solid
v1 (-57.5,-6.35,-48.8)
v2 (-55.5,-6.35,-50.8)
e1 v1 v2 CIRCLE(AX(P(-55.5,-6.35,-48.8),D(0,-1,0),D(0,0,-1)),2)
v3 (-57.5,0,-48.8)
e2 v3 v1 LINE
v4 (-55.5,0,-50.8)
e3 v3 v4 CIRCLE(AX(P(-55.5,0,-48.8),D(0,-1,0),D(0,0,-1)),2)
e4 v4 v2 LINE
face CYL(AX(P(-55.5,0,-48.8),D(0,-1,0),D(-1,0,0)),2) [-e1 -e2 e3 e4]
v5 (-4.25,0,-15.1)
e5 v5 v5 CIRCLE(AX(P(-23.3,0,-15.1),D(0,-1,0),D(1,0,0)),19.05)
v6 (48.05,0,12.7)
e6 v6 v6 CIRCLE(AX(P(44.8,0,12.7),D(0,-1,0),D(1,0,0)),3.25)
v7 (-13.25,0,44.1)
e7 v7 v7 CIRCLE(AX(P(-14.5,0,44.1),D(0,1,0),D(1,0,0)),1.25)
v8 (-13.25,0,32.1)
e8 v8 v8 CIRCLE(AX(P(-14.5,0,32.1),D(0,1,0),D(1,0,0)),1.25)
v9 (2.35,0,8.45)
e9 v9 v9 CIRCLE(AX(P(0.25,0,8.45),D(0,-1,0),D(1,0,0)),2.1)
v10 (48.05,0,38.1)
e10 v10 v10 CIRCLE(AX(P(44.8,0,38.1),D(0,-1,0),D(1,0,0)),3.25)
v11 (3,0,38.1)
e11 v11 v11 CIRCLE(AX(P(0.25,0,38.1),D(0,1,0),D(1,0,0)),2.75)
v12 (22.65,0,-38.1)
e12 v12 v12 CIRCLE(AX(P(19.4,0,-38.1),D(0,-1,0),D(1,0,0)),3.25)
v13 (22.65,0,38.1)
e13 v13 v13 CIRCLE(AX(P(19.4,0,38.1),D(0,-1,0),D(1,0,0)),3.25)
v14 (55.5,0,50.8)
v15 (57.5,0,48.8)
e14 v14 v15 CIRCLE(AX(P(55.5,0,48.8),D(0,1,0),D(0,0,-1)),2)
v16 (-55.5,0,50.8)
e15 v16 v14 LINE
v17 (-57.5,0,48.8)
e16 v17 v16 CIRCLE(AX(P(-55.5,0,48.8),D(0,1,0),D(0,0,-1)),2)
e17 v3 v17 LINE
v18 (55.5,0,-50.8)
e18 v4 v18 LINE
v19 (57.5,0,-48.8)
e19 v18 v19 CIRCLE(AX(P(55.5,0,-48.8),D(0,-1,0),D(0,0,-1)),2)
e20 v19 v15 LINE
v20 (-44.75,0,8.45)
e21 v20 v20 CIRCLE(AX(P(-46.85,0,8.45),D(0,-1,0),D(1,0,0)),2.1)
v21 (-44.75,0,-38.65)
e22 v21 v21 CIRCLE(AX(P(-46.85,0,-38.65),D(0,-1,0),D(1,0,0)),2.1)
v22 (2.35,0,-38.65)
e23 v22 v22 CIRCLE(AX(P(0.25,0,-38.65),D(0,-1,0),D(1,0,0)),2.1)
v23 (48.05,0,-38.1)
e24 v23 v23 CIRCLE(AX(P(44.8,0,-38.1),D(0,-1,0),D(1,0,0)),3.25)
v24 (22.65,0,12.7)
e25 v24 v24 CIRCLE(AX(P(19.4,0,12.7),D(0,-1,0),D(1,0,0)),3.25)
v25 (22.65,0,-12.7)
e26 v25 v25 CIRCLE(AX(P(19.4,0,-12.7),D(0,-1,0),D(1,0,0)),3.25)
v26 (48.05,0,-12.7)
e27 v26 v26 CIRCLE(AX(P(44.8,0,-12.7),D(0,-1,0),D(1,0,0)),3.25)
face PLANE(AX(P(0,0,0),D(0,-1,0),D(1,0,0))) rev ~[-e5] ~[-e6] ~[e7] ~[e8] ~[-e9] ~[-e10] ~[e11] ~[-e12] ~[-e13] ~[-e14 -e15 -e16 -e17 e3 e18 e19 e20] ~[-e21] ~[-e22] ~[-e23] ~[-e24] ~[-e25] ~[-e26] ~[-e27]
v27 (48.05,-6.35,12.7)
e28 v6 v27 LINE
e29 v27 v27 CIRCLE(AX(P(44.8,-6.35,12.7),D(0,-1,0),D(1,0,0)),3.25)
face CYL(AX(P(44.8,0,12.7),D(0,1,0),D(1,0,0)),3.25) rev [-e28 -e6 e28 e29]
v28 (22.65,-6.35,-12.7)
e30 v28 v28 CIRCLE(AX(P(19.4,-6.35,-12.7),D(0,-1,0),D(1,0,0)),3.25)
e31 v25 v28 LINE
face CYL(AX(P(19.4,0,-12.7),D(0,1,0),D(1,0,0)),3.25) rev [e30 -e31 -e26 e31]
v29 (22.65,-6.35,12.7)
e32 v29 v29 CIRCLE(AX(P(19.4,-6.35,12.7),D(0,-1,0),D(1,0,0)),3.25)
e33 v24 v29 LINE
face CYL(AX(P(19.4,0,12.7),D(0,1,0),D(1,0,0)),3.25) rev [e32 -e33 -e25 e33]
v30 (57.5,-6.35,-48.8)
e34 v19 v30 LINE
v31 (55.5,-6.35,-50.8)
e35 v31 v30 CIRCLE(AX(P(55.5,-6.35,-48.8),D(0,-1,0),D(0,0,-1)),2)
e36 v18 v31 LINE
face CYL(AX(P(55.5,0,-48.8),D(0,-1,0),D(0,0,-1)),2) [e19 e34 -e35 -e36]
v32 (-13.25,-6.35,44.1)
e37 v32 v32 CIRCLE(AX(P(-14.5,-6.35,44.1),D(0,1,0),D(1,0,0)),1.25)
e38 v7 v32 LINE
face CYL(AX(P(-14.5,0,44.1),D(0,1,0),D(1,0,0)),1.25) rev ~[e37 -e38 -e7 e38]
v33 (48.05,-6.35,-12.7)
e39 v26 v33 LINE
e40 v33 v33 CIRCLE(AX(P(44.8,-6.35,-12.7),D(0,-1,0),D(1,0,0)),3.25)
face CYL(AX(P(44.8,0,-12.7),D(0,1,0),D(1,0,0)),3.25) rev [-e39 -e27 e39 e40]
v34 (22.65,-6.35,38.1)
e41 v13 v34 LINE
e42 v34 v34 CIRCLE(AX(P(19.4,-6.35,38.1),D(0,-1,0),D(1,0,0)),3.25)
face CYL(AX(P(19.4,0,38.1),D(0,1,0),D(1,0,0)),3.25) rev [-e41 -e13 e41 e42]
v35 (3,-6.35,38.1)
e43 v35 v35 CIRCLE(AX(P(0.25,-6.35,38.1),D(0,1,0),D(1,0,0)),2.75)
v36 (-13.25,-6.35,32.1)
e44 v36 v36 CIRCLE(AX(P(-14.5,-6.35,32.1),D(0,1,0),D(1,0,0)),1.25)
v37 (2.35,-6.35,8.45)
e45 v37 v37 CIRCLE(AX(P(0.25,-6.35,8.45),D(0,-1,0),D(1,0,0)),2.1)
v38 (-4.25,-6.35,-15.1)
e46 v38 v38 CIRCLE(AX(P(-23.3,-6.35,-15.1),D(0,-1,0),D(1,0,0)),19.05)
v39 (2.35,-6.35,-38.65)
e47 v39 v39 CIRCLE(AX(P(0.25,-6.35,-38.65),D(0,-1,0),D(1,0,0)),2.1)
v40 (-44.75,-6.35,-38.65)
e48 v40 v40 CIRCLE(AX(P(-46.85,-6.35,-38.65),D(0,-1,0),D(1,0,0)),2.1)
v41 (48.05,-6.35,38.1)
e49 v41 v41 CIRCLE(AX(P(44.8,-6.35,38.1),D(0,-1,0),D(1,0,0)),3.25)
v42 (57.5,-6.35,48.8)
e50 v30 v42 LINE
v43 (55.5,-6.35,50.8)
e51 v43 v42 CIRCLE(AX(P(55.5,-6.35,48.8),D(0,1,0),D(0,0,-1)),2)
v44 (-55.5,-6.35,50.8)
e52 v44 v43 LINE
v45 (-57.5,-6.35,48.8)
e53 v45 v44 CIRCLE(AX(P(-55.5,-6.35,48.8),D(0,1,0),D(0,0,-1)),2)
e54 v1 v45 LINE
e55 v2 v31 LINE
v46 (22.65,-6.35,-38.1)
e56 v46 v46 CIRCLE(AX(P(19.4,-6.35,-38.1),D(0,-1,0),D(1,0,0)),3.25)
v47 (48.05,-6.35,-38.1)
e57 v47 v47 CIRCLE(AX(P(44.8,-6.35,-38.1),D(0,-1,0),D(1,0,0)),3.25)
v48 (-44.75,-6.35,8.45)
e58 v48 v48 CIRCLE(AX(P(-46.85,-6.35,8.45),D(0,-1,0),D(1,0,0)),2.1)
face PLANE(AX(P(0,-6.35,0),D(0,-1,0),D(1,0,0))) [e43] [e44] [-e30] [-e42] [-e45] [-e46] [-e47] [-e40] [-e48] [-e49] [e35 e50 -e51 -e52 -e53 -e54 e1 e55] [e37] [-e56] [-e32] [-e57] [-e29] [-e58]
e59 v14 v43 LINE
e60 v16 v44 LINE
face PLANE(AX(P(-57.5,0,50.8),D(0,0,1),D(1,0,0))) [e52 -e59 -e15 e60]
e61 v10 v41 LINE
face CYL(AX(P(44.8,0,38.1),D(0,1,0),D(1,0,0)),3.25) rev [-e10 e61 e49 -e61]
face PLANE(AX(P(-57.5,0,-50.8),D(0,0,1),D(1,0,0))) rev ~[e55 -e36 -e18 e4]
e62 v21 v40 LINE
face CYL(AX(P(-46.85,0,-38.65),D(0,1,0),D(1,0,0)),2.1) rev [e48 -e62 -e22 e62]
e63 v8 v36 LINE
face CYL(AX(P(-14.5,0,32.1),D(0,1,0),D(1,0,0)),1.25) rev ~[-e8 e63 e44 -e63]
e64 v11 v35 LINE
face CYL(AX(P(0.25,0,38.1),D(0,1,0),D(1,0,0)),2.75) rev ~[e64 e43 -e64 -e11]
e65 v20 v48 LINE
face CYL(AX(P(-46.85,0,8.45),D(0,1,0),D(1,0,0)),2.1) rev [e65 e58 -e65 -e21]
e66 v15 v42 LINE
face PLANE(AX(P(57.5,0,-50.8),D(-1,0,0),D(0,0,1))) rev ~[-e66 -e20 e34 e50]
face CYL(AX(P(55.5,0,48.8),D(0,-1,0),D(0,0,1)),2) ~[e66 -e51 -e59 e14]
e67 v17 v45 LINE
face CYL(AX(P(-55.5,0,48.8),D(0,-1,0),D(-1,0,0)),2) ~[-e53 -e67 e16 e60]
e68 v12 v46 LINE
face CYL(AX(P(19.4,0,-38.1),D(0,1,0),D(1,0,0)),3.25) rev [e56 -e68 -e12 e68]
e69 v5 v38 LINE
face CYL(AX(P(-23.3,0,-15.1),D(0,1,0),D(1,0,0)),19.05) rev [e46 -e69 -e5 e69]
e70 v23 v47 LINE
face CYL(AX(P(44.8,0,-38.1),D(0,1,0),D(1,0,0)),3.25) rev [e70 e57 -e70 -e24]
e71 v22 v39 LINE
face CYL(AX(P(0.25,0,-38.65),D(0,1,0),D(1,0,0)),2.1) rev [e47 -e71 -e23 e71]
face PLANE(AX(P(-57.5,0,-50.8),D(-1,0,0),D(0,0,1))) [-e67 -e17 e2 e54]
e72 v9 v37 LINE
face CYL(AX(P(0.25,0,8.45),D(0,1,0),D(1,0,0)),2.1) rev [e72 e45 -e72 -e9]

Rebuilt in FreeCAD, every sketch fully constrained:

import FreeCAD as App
import Part
import Sketcher
from FreeCAD import Vector
Q = App.Units.Quantity


def edges_at(feature, points):
    """Names of the edges that pass closest to the given points."""
    edges = feature.Shape.Edges
    near = lambda p: min(range(len(edges)), key=lambda i: edges[i].distToShape(Part.Vertex(*p))[0])
    return sorted({f"Edge{near(p) + 1}" for p in points})

doc = App.newDocument("Part")
body = doc.addObject("PartDesign::Body", "Body")

# Sketch on XZ plane
sketch1 = doc.addObject("Sketcher::SketchObject", "Sketch")
body.addObject(sketch1)
sketch1.AttachmentSupport = (doc.XZ_Plane, [""])
sketch1.MapMode = "FlatFace"
sketch1.addGeometry(Part.LineSegment(Vector(-57.5, 50.8, 0), Vector(-57.5, -50.8, 0)), False)
sketch1.addGeometry(Part.LineSegment(Vector(-57.5, -50.8, 0), Vector(57.5, -50.8, 0)), False)
sketch1.addGeometry(Part.LineSegment(Vector(57.5, -50.8, 0), Vector(57.5, 50.8, 0)), False)
sketch1.addGeometry(Part.LineSegment(Vector(57.5, 50.8, 0), Vector(-57.5, 50.8, 0)), False)
sketch1.addGeometry(Part.Circle(Vector(-46.9, -38.6, 0), Vector(0, 0, 1), 2.1), False)
sketch1.addGeometry(Part.Circle(Vector(-23.3, -15.1, 0), Vector(0, 0, 1), 19.1), False)
sketch1.addGeometry(Part.Circle(Vector(0.2, -38.6, 0), Vector(0, 0, 1), 2.1), False)
sketch1.addGeometry(Part.Circle(Vector(19.4, -38.1, 0), Vector(0, 0, 1), 3.2), False)
sketch1.addGeometry(Part.Circle(Vector(44.8, -38.1, 0), Vector(0, 0, 1), 3.2), False)
sketch1.addGeometry(Part.Circle(Vector(19.4, -12.7, 0), Vector(0, 0, 1), 3.2), False)
sketch1.addGeometry(Part.Circle(Vector(44.8, -12.7, 0), Vector(0, 0, 1), 3.2), False)
sketch1.addGeometry(Part.Circle(Vector(-46.9, 8.4, 0), Vector(0, 0, 1), 2.1), False)
sketch1.addGeometry(Part.Circle(Vector(0.2, 8.4, 0), Vector(0, 0, 1), 2.1), False)
sketch1.addGeometry(Part.Circle(Vector(19.4, 12.7, 0), Vector(0, 0, 1), 3.2), False)
sketch1.addGeometry(Part.Circle(Vector(44.8, 12.7, 0), Vector(0, 0, 1), 3.2), False)
sketch1.addGeometry(Part.Circle(Vector(19.4, 38.1, 0), Vector(0, 0, 1), 3.2), False)
sketch1.addGeometry(Part.Circle(Vector(44.8, 38.1, 0), Vector(0, 0, 1), 3.2), False)
sketch1.addConstraint(Sketcher.Constraint("Coincident", 0, 2, 1, 1))
sketch1.addConstraint(Sketcher.Constraint("Coincident", 1, 2, 2, 1))
sketch1.addConstraint(Sketcher.Constraint("Coincident", 2, 2, 3, 1))
sketch1.addConstraint(Sketcher.Constraint("Coincident", 3, 2, 0, 1))
sketch1.addConstraint(Sketcher.Constraint("Vertical", 0))
sketch1.addConstraint(Sketcher.Constraint("Horizontal", 1))
sketch1.addConstraint(Sketcher.Constraint("Vertical", 2))
sketch1.addConstraint(Sketcher.Constraint("Horizontal", 3))
sketch1.addConstraint(Sketcher.Constraint("Equal", 4, 6))
sketch1.addConstraint(Sketcher.Constraint("Equal", 7, 8))
sketch1.addConstraint(Sketcher.Constraint("Equal", 8, 9))
sketch1.addConstraint(Sketcher.Constraint("Equal", 9, 10))
sketch1.addConstraint(Sketcher.Constraint("Equal", 6, 11))
sketch1.addConstraint(Sketcher.Constraint("Equal", 11, 12))
sketch1.addConstraint(Sketcher.Constraint("Equal", 10, 13))
sketch1.addConstraint(Sketcher.Constraint("Equal", 13, 14))
sketch1.addConstraint(Sketcher.Constraint("Equal", 14, 15))
sketch1.addConstraint(Sketcher.Constraint("Equal", 15, 16))
sketch1.addConstraint(Sketcher.Constraint("Symmetric", 0, 2, 2, 2, -1, 1))
sketch1.addConstraint(Sketcher.Constraint("Symmetric", 9, 3, 13, 3, -1))
sketch1.addConstraint(Sketcher.Constraint("Symmetric", 10, 3, 14, 3, -1))
sketch1.addConstraint(Sketcher.Constraint("Symmetric", 7, 3, 15, 3, -1))
sketch1.addConstraint(Sketcher.Constraint("Symmetric", 8, 3, 16, 3, -1))
sketch1.addConstraint(Sketcher.Constraint("Horizontal", 4, 3, 6, 3))
sketch1.addConstraint(Sketcher.Constraint("Horizontal", 7, 3, 8, 3))
sketch1.addConstraint(Sketcher.Constraint("Horizontal", 9, 3, 10, 3))
sketch1.addConstraint(Sketcher.Constraint("Horizontal", 11, 3, 12, 3))
sketch1.addConstraint(Sketcher.Constraint("Vertical", 7, 3, 9, 3))
sketch1.addConstraint(Sketcher.Constraint("Vertical", 8, 3, 10, 3))
sketch1.addConstraint(Sketcher.Constraint("Vertical", 4, 3, 11, 3))
sketch1.addConstraint(Sketcher.Constraint("Vertical", 6, 3, 12, 3))
sketch1.addConstraint(Sketcher.Constraint("Diameter", 4, Q("4.2 mm")))
sketch1.addConstraint(Sketcher.Constraint("Diameter", 5, Q("38.1 mm")))
sketch1.addConstraint(Sketcher.Constraint("Diameter", 7, Q("6.5 mm")))
sketch1.addConstraint(Sketcher.Constraint("DistanceX", 1, 1, 1, 2, Q("115 mm")))
sketch1.addConstraint(Sketcher.Constraint("DistanceY", 0, 2, 0, 1, Q("101.6 mm")))
sketch1.addConstraint(Sketcher.Constraint("DistanceY", 7, 3, 5, 3, Q("23 mm")))
sketch1.addConstraint(Sketcher.Constraint("DistanceX", 5, 3, -1, 1, Q("23.3 mm")))
sketch1.addConstraint(Sketcher.Constraint("DistanceY", 5, 3, -1, 1, Q("15.1 mm")))
sketch1.addConstraint(Sketcher.Constraint("DistanceX", -1, 1, 7, 3, Q("19.4 mm")))
sketch1.addConstraint(Sketcher.Constraint("DistanceX", -1, 1, 8, 3, Q("44.8 mm")))
sketch1.addConstraint(Sketcher.Constraint("DistanceY", 9, 3, -1, 1, Q("12.7 mm")))
sketch1.addConstraint(Sketcher.Constraint("DistanceX", 4, 3, 6, 3, Q("47.1 mm")))
sketch1.addConstraint(Sketcher.Constraint("DistanceY", 4, 3, 11, 3, Q("47.1 mm")))
sketch1.addConstraint(Sketcher.Constraint("DistanceX", 4, 3, -1, 1, Q("46.85 mm")))
sketch1.addConstraint(Sketcher.Constraint("DistanceY", 4, 3, -1, 1, Q("38.65 mm")))
pad1 = doc.addObject("PartDesign::Pad", "Pad")
body.addObject(pad1)
pad1.Profile = sketch1
pad1.Length = 6.35
doc.recompute()

fillet = doc.addObject("PartDesign::Fillet", "Fillet")
body.addObject(fillet)
fillet.Base = (pad1, edges_at(pad1, [
    (57.5, -3.175, 50.8),
    (57.5, -3.175, -50.8),
    (-57.5, -3.175, -50.8),
    (-57.5, -3.175, 50.8),
]))
fillet.Radius = 2

# Sketch on XZ plane
sketch2 = doc.addObject("Sketcher::SketchObject", "Sketch001")
body.addObject(sketch2)
sketch2.AttachmentSupport = (doc.XZ_Plane, [""])
sketch2.MapMode = "FlatFace"
sketch2.addGeometry(Part.Circle(Vector(-14.5, 32.1, 0), Vector(0, 0, 1), 1.2), False)
sketch2.addGeometry(Part.Circle(Vector(-14.5, 44.1, 0), Vector(0, 0, 1), 1.2), False)
sketch2.addGeometry(Part.Circle(Vector(0.2, 38.1, 0), Vector(0, 0, 1), 2.8), False)
sketch2.addConstraint(Sketcher.Constraint("Equal", 0, 1))
sketch2.addConstraint(Sketcher.Constraint("Vertical", 0, 3, 1, 3))
sketch2.addConstraint(Sketcher.Constraint("Diameter", 0, Q("2.5 mm")))
sketch2.addConstraint(Sketcher.Constraint("Diameter", 2, Q("5.5 mm")))
sketch2.addConstraint(Sketcher.Constraint("DistanceY", 0, 3, 1, 3, Q("12 mm")))
sketch2.addConstraint(Sketcher.Constraint("DistanceY", 0, 3, 2, 3, Q("6 mm")))
sketch2.addConstraint(Sketcher.Constraint("DistanceX", 0, 3, -1, 1, Q("14.5 mm")))
sketch2.addConstraint(Sketcher.Constraint("DistanceY", -1, 1, 0, 3, Q("32.1 mm")))
sketch2.addConstraint(Sketcher.Constraint("DistanceX", -1, 1, 2, 3, Q("0.25 mm")))
pocket1 = doc.addObject("PartDesign::Pocket", "Pocket")
body.addObject(pocket1)
pocket1.Profile = sketch2
pocket1.Type = "ThroughAll"
pocket1.Reversed = True

doc.recompute()
